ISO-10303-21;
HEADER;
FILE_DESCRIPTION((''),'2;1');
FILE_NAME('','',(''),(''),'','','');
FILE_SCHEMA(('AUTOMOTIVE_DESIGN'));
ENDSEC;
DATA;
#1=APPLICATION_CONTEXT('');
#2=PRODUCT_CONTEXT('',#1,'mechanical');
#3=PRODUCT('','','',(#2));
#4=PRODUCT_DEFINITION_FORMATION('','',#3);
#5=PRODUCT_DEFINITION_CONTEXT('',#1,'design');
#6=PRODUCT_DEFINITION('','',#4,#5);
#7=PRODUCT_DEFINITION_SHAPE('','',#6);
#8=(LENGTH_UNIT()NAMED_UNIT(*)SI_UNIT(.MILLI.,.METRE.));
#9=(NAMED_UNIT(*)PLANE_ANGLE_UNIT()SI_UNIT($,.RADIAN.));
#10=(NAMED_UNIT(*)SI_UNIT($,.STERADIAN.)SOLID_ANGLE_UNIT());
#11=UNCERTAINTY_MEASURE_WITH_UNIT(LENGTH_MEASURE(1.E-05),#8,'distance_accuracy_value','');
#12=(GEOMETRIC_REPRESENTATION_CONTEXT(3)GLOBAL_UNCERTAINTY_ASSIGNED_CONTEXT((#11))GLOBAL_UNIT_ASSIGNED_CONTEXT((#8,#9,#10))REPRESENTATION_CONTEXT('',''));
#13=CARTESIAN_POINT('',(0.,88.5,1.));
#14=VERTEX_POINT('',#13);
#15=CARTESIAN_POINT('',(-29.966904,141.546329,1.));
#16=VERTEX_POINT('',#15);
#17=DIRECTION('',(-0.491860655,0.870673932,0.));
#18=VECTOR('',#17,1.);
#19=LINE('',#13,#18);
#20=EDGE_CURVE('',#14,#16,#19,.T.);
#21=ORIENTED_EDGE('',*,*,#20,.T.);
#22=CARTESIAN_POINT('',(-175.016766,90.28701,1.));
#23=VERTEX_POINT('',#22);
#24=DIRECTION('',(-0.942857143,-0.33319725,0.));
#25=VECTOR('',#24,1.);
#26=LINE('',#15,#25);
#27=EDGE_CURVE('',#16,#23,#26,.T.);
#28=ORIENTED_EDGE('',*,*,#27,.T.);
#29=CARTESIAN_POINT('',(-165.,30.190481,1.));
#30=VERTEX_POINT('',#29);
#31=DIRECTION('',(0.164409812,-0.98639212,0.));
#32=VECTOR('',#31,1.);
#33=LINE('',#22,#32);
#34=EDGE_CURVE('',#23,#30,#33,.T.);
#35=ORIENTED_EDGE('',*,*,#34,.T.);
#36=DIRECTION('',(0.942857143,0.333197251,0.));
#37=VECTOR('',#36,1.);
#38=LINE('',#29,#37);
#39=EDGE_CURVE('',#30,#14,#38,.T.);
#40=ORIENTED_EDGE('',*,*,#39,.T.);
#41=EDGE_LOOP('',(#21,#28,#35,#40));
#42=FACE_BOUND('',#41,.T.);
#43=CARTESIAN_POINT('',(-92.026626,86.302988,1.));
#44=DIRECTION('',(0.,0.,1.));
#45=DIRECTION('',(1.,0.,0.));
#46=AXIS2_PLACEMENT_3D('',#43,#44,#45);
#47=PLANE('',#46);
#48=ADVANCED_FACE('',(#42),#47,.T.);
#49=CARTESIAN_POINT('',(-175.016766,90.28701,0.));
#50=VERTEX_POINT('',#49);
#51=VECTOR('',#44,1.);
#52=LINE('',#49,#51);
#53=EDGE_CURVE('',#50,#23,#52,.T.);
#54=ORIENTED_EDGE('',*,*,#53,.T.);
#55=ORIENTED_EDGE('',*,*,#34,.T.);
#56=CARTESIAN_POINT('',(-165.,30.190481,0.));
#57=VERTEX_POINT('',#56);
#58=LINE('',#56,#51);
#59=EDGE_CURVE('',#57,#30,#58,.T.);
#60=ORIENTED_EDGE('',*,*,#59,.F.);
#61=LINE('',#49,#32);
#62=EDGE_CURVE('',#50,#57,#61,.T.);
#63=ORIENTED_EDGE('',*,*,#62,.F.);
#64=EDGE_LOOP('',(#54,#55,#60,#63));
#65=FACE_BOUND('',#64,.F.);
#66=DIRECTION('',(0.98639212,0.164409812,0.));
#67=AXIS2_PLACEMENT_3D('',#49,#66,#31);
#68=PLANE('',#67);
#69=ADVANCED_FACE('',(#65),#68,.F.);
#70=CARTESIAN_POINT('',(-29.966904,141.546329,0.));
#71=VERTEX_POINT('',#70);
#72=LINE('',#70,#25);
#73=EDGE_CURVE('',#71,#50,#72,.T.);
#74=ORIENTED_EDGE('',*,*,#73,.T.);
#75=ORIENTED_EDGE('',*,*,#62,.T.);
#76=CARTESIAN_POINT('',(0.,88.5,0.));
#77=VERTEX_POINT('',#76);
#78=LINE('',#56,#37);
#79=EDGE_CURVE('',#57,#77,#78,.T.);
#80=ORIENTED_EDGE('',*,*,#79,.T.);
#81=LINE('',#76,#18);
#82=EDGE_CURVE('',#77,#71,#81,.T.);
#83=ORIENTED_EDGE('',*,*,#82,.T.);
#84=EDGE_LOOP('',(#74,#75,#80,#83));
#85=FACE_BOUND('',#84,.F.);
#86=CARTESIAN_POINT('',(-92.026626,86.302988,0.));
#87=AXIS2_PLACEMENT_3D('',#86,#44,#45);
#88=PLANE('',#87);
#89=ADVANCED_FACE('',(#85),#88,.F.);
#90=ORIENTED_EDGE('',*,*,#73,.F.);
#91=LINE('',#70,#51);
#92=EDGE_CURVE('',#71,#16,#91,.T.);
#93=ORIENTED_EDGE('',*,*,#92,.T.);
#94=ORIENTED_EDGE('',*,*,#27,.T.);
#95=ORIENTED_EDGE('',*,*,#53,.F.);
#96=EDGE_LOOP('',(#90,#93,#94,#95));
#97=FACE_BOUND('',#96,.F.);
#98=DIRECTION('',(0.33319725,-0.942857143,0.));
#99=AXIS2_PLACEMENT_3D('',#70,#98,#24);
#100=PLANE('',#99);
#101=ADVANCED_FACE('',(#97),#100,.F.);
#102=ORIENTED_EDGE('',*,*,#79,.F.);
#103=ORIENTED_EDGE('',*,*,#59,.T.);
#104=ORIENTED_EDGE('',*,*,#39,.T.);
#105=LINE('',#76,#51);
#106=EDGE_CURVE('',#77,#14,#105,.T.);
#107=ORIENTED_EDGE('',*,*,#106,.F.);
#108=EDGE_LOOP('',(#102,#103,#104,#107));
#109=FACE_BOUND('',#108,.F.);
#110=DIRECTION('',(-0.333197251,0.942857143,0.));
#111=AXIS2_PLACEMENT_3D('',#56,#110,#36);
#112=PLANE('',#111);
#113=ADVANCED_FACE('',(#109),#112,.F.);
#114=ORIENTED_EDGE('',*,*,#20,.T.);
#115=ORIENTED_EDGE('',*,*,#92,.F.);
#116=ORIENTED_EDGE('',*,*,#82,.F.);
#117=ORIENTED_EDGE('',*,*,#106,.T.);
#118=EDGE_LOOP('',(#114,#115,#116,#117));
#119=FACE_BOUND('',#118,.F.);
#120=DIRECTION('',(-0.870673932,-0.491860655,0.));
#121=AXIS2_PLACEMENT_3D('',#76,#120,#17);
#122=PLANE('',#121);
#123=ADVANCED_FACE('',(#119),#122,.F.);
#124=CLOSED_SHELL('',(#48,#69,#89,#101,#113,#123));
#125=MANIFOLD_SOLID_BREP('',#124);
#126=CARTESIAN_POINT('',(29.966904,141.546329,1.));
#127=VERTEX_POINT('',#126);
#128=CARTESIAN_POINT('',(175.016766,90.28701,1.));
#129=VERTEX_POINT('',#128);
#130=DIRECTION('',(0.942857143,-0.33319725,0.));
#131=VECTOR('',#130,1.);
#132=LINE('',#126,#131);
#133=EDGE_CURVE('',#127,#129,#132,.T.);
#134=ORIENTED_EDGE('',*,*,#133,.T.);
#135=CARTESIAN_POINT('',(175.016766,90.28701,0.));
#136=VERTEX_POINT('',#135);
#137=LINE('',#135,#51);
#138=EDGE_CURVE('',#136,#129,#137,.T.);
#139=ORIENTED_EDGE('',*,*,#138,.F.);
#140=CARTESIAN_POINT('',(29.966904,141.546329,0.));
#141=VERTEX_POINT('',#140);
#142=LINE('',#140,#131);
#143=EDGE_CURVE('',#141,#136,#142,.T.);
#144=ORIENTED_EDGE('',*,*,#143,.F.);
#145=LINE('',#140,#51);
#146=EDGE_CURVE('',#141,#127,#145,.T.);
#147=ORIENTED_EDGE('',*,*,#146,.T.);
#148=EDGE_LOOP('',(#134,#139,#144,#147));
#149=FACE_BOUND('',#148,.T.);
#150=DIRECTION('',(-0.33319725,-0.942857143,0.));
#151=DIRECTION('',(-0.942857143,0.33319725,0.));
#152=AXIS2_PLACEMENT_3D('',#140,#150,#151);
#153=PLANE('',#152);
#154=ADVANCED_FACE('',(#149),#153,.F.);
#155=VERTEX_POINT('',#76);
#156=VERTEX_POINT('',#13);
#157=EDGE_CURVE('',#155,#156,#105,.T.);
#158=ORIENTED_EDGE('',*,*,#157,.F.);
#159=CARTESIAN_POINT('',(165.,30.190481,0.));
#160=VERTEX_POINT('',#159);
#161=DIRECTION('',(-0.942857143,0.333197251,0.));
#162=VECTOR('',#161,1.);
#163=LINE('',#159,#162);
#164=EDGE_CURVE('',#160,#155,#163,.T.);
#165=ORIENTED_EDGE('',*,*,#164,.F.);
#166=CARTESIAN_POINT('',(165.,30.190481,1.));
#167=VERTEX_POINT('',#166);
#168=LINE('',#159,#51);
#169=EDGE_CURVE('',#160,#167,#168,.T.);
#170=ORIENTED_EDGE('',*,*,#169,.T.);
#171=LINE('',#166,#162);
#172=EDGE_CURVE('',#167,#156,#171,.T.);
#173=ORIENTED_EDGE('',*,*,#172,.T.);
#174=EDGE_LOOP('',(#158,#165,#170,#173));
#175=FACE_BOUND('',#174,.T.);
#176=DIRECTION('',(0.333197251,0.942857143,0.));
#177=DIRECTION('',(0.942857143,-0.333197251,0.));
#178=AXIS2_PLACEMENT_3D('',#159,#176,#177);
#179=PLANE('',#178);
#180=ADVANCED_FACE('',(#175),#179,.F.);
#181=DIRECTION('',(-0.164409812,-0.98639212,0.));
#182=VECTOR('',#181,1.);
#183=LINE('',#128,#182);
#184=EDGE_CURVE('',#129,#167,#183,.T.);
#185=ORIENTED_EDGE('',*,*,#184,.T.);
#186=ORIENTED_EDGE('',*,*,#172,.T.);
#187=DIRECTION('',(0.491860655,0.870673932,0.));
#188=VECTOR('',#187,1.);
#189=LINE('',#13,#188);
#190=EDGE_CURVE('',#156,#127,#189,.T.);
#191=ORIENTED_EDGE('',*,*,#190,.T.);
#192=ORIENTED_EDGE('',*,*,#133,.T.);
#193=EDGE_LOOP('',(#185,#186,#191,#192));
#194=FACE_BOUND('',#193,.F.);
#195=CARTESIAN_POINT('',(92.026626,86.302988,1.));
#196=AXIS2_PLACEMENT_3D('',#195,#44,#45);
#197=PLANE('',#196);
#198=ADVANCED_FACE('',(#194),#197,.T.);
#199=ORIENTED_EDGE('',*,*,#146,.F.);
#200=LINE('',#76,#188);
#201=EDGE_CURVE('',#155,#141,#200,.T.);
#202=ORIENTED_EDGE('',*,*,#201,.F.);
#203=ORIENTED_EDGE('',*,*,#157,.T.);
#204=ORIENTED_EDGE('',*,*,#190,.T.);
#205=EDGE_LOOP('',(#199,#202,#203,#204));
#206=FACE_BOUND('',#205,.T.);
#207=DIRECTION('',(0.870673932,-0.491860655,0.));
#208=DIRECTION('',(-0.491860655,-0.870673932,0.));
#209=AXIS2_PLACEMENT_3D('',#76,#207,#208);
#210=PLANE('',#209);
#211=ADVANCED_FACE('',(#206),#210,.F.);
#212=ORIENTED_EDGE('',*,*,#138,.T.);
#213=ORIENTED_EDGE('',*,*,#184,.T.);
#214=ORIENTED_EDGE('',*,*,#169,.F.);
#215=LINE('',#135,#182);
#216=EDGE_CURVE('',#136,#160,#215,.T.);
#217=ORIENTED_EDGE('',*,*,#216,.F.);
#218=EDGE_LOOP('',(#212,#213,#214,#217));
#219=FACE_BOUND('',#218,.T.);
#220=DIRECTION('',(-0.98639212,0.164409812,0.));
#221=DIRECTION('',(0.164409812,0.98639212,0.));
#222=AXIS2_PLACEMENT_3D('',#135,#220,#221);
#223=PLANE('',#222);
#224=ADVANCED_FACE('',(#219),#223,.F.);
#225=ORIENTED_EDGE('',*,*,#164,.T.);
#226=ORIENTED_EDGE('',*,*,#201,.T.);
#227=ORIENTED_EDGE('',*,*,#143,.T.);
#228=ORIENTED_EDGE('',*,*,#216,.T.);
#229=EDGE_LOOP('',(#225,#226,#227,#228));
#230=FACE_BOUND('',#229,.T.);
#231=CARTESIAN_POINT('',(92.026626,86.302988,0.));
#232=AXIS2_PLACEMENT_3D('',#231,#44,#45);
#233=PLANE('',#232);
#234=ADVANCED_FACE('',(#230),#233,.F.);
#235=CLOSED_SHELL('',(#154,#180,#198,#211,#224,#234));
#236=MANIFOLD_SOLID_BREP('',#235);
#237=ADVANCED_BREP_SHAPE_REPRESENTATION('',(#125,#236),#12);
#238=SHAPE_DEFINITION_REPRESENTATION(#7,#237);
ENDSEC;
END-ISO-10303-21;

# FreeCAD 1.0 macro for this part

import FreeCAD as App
import Part
import Sketcher
from FreeCAD import Vector
Q = App.Units.Quantity


def add_polygon(sketch, points):
    """Adds a closed chain of lines whose ends are joined by coincident constraints."""
    first, n = sketch.GeometryCount, len(points)
    for a, b in zip(points, points[1:] + points[:1]):
        sketch.addGeometry(Part.LineSegment(App.Vector(*a, 0), App.Vector(*b, 0)), False)
    for i in range(n):
        sketch.addConstraint(Sketcher.Constraint("Coincident", first + i, 2, first + (i + 1) % n, 1))

doc = App.newDocument("Part")
body = doc.addObject("PartDesign::Body", "Body")

# Sketch on XY plane
sketch1 = body.newObject("Sketcher::SketchObject", "Sketch")
sketch1.AttachmentSupport = (doc.getObject("XY_Plane"), [""])
sketch1.MapMode = "FlatFace"
add_polygon(sketch1, [(-175, 90), (-165, 30), (0, 88), (-30, 142)])  # lines 0-3
sketch1.addConstraint([
    Sketcher.Constraint("PointOnObject", 1, 2, -2),
    Sketcher.Constraint("Parallel", 1, 3),
    Sketcher.Constraint("Equal", 0, 2),
    Sketcher.Constraint("Distance", 1, Q("175 mm")),
    Sketcher.Constraint("DistanceX", 0, 2, -1, 1, Q("165 mm")),
    Sketcher.Constraint("DistanceY", -1, 1, 1, 2, Q("88.5 mm")),
    Sketcher.Constraint("DistanceY", -1, 1, 2, 2, Q("141.546329 mm")),
    Sketcher.Constraint("DistanceY", -1, 1, 3, 2, Q("90.28701 mm")),
])
pad1 = body.newObject("PartDesign::Pad", "Pad")
pad1.Profile = sketch1
pad1.Length = 1
body2 = doc.addObject("PartDesign::Body", "Body001")
doc.recompute()

mirroring = doc.addObject("Part::Mirroring", "Mirroring")
mirroring.Source = body
mirroring.Base = Vector(0, 0, 0)
mirroring.Normal = Vector(1, 0, 0)
body2.BaseFeature = mirroring
doc.recompute()
mirroring.Visibility = False

doc.recompute()
